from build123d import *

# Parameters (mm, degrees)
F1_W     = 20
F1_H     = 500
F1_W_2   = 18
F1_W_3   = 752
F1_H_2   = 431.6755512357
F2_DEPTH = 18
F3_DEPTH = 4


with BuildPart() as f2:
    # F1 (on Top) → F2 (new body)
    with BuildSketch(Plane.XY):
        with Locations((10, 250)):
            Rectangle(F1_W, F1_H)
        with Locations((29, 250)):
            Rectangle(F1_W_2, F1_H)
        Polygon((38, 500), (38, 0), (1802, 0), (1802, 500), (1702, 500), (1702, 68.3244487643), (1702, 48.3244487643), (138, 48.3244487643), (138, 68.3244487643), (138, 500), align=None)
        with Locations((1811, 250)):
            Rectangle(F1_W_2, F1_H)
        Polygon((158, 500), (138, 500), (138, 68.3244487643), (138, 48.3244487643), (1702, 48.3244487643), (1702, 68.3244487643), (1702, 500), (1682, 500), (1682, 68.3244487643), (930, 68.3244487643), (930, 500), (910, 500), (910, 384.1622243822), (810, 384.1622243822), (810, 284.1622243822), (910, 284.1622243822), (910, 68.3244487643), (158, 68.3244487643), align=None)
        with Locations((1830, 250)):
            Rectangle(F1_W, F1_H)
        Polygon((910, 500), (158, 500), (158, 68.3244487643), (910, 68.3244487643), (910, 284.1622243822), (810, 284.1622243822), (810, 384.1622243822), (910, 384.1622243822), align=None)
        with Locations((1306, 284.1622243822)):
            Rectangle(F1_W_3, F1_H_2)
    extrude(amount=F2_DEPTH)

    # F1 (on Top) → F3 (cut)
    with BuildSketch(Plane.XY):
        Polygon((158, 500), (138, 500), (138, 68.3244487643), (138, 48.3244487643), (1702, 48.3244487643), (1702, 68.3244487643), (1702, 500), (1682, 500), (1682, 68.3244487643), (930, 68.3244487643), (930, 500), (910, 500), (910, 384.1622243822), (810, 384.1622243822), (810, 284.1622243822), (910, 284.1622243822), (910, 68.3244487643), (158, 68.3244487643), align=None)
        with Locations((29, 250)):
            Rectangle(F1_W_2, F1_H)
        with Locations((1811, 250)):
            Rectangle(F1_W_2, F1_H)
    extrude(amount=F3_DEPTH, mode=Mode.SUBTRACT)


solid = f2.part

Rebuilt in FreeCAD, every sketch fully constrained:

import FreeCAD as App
import Part
import Sketcher
from FreeCAD import Vector


def add_polygon(sketch, points):
    """Adds a closed chain of lines whose ends are joined by coincident constraints."""
    first, n = sketch.GeometryCount, len(points)
    for a, b in zip(points, points[1:] + points[:1]):
        sketch.addGeometry(Part.LineSegment(App.Vector(*a, 0), App.Vector(*b, 0)), False)
    for i in range(n):
        sketch.addConstraint(Sketcher.Constraint("Coincident", first + i, 2, first + (i + 1) % n, 1))

doc = App.newDocument("Part")
params = doc.addObject("Spreadsheet::Sheet", "Params")
for row, (alias, value) in enumerate([
    ("sketch1_width", "1840 mm"),
    ("sketch1_height", "500 mm"),
    ("pad1_length", "18 mm"),
    ("sketch2_width", "20 mm"),
    ("sketch2_width2", "1564 mm"),
    ("sketch2_width3", "100 mm"),
    ("sketch2_width4", "18 mm"),
    ("sketch2_height", "500 mm"),
    ("pocket1_length", "4 mm"),
], start=1):
    params.set(f"A{row}", alias)
    params.set(f"B{row}", "=" + value)
    params.setAlias(f"B{row}", alias)

body = doc.addObject("PartDesign::Body", "Body")

sketch1 = body.newObject("Sketcher::SketchObject", "Sketch")
sketch1.AttachmentSupport = (doc.getObject("XY_Plane"), [""])
sketch1.MapMode = "FlatFace"
add_polygon(sketch1, [(0, 500), (0, 0), (1840, 0), (1840, 500)])
sketch1.addConstraint([
    Sketcher.Constraint("Vertical", 0),
    Sketcher.Constraint("Horizontal", 1),
    Sketcher.Constraint("Vertical", 2),
    Sketcher.Constraint("Horizontal", 3),
    Sketcher.Constraint("Coincident", 0, 2, -1, 1),
    Sketcher.Constraint("DistanceX", 1, 1, 1, 2, 1840.0),
    Sketcher.Constraint("DistanceY", 0, 2, 0, 1, 500.0),
])
sketch1.setExpression("Constraints[9]", "Params.sketch1_width")
sketch1.setExpression("Constraints[10]", "Params.sketch1_height")
pad1 = body.newObject("PartDesign::Pad", "Pad")
pad1.Profile = sketch1
pad1.setExpression("Length", "Params.pad1_length")

sketch2 = body.newObject("Sketcher::SketchObject", "Sketch001")
sketch2.AttachmentSupport = (doc.getObject("XY_Plane"), [""])
sketch2.MapMode = "FlatFace"
add_polygon(sketch2, [(158, 500), (138, 500), (138, 48), (1702, 48), (1702, 500), (1682, 500), (1682, 68), (930, 68), (930, 500), (910, 500), (910, 384), (810, 384), (810, 284), (910, 284), (910, 68), (158, 68)])
add_polygon(sketch2, [(20, 500), (20, 0), (38, 0), (38, 500)])
add_polygon(sketch2, [(1802, 500), (1802, 0), (1820, 0), (1820, 500)])
sketch2.addConstraint([
    Sketcher.Constraint("Horizontal", 0),
    Sketcher.Constraint("Vertical", 1),
    Sketcher.Constraint("Horizontal", 2),
    Sketcher.Constraint("Vertical", 3),
    Sketcher.Constraint("Horizontal", 4),
    Sketcher.Constraint("Vertical", 5),
    Sketcher.Constraint("Horizontal", 6),
    Sketcher.Constraint("Vertical", 7),
    Sketcher.Constraint("Horizontal", 8),
    Sketcher.Constraint("Vertical", 9),
    Sketcher.Constraint("Horizontal", 10),
    Sketcher.Constraint("Vertical", 11),
    Sketcher.Constraint("Horizontal", 12),
    Sketcher.Constraint("Vertical", 13),
    Sketcher.Constraint("Horizontal", 14),
    Sketcher.Constraint("Vertical", 15),
    Sketcher.Constraint("Vertical", 16),
    Sketcher.Constraint("Horizontal", 17),
    Sketcher.Constraint("Vertical", 18),
    Sketcher.Constraint("Horizontal", 19),
    Sketcher.Constraint("Vertical", 20),
    Sketcher.Constraint("Horizontal", 21),
    Sketcher.Constraint("Vertical", 22),
    Sketcher.Constraint("Horizontal", 23),
    Sketcher.Constraint("PointOnObject", 16, 2, -1),
    Sketcher.Constraint("PointOnObject", 20, 2, -1),
    Sketcher.Constraint("Horizontal", 0, 2, 3, 2),
    Sketcher.Constraint("Horizontal", 4, 2, 7, 2),
    Sketcher.Constraint("Horizontal", 6, 2, 13, 2),
    Sketcher.Constraint("Horizontal", 15, 2, 18, 2),
    Sketcher.Constraint("Horizontal", 19, 2, 22, 2),
    Sketcher.Constraint("Vertical", 9, 2, 12, 2),
    Sketcher.Constraint("Equal", 0, 4),
    Sketcher.Constraint("Equal", 4, 8),
    Sketcher.Constraint("Equal", 6, 14),
    Sketcher.Constraint("Equal", 19, 21),
    Sketcher.Constraint("Equal", 12, 11),
    Sketcher.Constraint("DistanceX", 0, 2, 0, 1, 20.0),
    Sketcher.Constraint("DistanceX", 2, 1, 2, 2, 1564.0),
    Sketcher.Constraint("DistanceX", 10, 2, 10, 1, 100.0),
    Sketcher.Constraint("DistanceX", 17, 1, 17, 2, 18.0),
    Sketcher.Constraint("DistanceY", 16, 2, 16, 1, 500.0),
    Sketcher.Constraint("DistanceX", -1, 1, 0, 2, 138.0),
    Sketcher.Constraint("DistanceX", -1, 1, 16, 2, 20.0),
    Sketcher.Constraint("DistanceX", -1, 1, 20, 2, 1802.0),
    Sketcher.Constraint("DistanceY", 2, 2, 5, 2, 20.0),
    Sketcher.Constraint("DistanceY", 1, 2, 1, 1, 451.675551),
    Sketcher.Constraint("DistanceY", 9, 2, 9, 1, 115.837776),
])
sketch2.setExpression("Constraints[61]", "Params.sketch2_width")
sketch2.setExpression("Constraints[62]", "Params.sketch2_width2")
sketch2.setExpression("Constraints[63]", "Params.sketch2_width3")
sketch2.setExpression("Constraints[64]", "Params.sketch2_width4")
sketch2.setExpression("Constraints[65]", "Params.sketch2_height")
pocket1 = body.newObject("PartDesign::Pocket", "Pocket")
pocket1.Profile = sketch2
pocket1.setExpression("Length", "Params.pocket1_length")
pocket1.Reversed = True

doc.recompute()
